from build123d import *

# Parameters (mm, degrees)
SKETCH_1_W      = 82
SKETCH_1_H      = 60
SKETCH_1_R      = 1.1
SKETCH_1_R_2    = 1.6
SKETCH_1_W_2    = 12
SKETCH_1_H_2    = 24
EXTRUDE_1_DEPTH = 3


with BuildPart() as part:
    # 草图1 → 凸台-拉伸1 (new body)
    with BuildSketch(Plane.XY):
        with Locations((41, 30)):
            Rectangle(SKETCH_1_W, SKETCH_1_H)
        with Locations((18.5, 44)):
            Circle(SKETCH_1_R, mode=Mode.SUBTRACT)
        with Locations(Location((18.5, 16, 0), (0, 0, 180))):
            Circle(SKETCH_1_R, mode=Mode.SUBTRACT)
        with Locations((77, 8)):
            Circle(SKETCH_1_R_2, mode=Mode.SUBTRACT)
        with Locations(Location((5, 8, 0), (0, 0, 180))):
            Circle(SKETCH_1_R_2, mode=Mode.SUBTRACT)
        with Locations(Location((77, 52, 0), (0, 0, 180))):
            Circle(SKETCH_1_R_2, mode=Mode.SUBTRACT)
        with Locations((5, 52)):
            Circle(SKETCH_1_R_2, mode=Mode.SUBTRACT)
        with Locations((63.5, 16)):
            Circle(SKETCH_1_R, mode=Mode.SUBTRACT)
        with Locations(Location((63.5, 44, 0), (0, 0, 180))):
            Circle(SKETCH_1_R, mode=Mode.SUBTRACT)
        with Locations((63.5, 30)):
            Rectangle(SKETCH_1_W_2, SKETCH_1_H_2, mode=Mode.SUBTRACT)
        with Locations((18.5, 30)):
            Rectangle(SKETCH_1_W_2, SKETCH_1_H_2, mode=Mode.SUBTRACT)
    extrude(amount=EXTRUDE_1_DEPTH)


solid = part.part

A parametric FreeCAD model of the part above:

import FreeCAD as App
import Part
import Sketcher

V = App.Vector
Q = App.Units.Quantity


def add_polygon(sketch, points):
    """Adds a closed chain of lines whose ends are joined by coincident constraints."""
    first, n = sketch.GeometryCount, len(points)
    for a, b in zip(points, points[1:] + points[:1]):
        sketch.addGeometry(Part.LineSegment(App.Vector(*a, 0), App.Vector(*b, 0)), False)
    for i in range(n):
        sketch.addConstraint(Sketcher.Constraint("Coincident", first + i, 2, first + (i + 1) % n, 1))

doc = App.newDocument("Part")
body = doc.addObject("PartDesign::Body", "Body")

sketch1 = body.newObject("Sketcher::SketchObject", "Sketch")
sketch1.AttachmentSupport = (doc.getObject("XY_Plane"), [""])
sketch1.MapMode = "FlatFace"
add_polygon(sketch1, [(0, 60), (0, 0), (82, 0), (82, 60)])
sketch1.addGeometry(Part.Circle(V(5, 8, 0), V(0, 0, 1), 1.6), False)
sketch1.addGeometry(Part.Circle(V(18.5, 16, 0), V(0, 0, 1), 1.1), False)
sketch1.addGeometry(Part.Circle(V(77, 8, 0), V(0, 0, 1), 1.6), False)
sketch1.addGeometry(Part.Circle(V(63.5, 16, 0), V(0, 0, 1), 1.1), False)
add_polygon(sketch1, [(24.5, 18), (12.5, 18), (12.5, 42), (24.5, 42)])
sketch1.addGeometry(Part.Circle(V(18.5, 44, 0), V(0, 0, 1), 1.1), False)
sketch1.addGeometry(Part.Circle(V(5, 52, 0), V(0, 0, 1), 1.6), False)
add_polygon(sketch1, [(69.5, 18), (57.5, 18), (57.5, 42), (69.5, 42)])
sketch1.addGeometry(Part.Circle(V(63.5, 44, 0), V(0, 0, 1), 1.1), False)
sketch1.addGeometry(Part.Circle(V(77, 52, 0), V(0, 0, 1), 1.6), False)
sketch1.addConstraint([
    Sketcher.Constraint("Vertical", 0),
    Sketcher.Constraint("Horizontal", 1),
    Sketcher.Constraint("Vertical", 2),
    Sketcher.Constraint("Horizontal", 3),
    Sketcher.Constraint("Horizontal", 8),
    Sketcher.Constraint("Vertical", 9),
    Sketcher.Constraint("Horizontal", 10),
    Sketcher.Constraint("Vertical", 11),
    Sketcher.Constraint("Horizontal", 14),
    Sketcher.Constraint("Vertical", 15),
    Sketcher.Constraint("Horizontal", 16),
    Sketcher.Constraint("Vertical", 17),
    Sketcher.Constraint("Coincident", 0, 2, -1, 1),
    Sketcher.Constraint("Equal", 4, 6),
    Sketcher.Constraint("Equal", 5, 7),
    Sketcher.Constraint("Equal", 7, 12),
    Sketcher.Constraint("Equal", 6, 13),
    Sketcher.Constraint("Equal", 12, 18),
    Sketcher.Constraint("Equal", 13, 19),
    Sketcher.Constraint("Horizontal", 4, 3, 6, 3),
    Sketcher.Constraint("Horizontal", 5, 3, 7, 3),
    Sketcher.Constraint("Horizontal", 12, 3, 18, 3),
    Sketcher.Constraint("Horizontal", 13, 3, 19, 3),
    Sketcher.Constraint("Horizontal", 11, 2, 14, 2),
    Sketcher.Constraint("Horizontal", 10, 2, 15, 2),
    Sketcher.Constraint("Vertical", 5, 3, 12, 3),
    Sketcher.Constraint("Vertical", 4, 3, 13, 3),
    Sketcher.Constraint("Vertical", 7, 3, 18, 3),
    Sketcher.Constraint("Vertical", 6, 3, 19, 3),
    Sketcher.Constraint("Equal", 10, 14),
    Sketcher.Constraint("Diameter", 4, Q("3.2 mm")),
    Sketcher.Constraint("Diameter", 5, Q("2.2 mm")),
    Sketcher.Constraint("DistanceX", 1, 1, 1, 2, Q("82 mm")),
    Sketcher.Constraint("DistanceX", 8, 2, 8, 1, Q("12 mm")),
    Sketcher.Constraint("DistanceY", 0, 2, 0, 1, Q("60 mm")),
    Sketcher.Constraint("DistanceY", 9, 1, 9, 2, Q("24 mm")),
    Sketcher.Constraint("DistanceX", -1, 1, 4, 3, Q("5 mm")),
    Sketcher.Constraint("DistanceY", -1, 1, 4, 3, Q("8 mm")),
    Sketcher.Constraint("DistanceY", -1, 1, 5, 3, Q("16 mm")),
    Sketcher.Constraint("DistanceX", -1, 1, 6, 3, Q("77 mm")),
    Sketcher.Constraint("DistanceY", -1, 1, 12, 3, Q("44 mm")),
    Sketcher.Constraint("DistanceY", -1, 1, 13, 3, Q("52 mm")),
    Sketcher.Constraint("DistanceY", -1, 1, 8, 2, Q("18 mm")),
    Sketcher.Constraint("DistanceX", 5, 3, 7, 3, Q("45 mm")),
    Sketcher.Constraint("DistanceX", 8, 2, 5, 3, Q("6 mm")),
    Sketcher.Constraint("DistanceX", 14, 2, 7, 3, Q("6 mm")),
    Sketcher.Constraint("DistanceX", -1, 1, 5, 3, Q("18.5 mm")),
])
pad1 = body.newObject("PartDesign::Pad", "Pad")
pad1.Profile = sketch1
pad1.Length = 3

doc.recompute()
